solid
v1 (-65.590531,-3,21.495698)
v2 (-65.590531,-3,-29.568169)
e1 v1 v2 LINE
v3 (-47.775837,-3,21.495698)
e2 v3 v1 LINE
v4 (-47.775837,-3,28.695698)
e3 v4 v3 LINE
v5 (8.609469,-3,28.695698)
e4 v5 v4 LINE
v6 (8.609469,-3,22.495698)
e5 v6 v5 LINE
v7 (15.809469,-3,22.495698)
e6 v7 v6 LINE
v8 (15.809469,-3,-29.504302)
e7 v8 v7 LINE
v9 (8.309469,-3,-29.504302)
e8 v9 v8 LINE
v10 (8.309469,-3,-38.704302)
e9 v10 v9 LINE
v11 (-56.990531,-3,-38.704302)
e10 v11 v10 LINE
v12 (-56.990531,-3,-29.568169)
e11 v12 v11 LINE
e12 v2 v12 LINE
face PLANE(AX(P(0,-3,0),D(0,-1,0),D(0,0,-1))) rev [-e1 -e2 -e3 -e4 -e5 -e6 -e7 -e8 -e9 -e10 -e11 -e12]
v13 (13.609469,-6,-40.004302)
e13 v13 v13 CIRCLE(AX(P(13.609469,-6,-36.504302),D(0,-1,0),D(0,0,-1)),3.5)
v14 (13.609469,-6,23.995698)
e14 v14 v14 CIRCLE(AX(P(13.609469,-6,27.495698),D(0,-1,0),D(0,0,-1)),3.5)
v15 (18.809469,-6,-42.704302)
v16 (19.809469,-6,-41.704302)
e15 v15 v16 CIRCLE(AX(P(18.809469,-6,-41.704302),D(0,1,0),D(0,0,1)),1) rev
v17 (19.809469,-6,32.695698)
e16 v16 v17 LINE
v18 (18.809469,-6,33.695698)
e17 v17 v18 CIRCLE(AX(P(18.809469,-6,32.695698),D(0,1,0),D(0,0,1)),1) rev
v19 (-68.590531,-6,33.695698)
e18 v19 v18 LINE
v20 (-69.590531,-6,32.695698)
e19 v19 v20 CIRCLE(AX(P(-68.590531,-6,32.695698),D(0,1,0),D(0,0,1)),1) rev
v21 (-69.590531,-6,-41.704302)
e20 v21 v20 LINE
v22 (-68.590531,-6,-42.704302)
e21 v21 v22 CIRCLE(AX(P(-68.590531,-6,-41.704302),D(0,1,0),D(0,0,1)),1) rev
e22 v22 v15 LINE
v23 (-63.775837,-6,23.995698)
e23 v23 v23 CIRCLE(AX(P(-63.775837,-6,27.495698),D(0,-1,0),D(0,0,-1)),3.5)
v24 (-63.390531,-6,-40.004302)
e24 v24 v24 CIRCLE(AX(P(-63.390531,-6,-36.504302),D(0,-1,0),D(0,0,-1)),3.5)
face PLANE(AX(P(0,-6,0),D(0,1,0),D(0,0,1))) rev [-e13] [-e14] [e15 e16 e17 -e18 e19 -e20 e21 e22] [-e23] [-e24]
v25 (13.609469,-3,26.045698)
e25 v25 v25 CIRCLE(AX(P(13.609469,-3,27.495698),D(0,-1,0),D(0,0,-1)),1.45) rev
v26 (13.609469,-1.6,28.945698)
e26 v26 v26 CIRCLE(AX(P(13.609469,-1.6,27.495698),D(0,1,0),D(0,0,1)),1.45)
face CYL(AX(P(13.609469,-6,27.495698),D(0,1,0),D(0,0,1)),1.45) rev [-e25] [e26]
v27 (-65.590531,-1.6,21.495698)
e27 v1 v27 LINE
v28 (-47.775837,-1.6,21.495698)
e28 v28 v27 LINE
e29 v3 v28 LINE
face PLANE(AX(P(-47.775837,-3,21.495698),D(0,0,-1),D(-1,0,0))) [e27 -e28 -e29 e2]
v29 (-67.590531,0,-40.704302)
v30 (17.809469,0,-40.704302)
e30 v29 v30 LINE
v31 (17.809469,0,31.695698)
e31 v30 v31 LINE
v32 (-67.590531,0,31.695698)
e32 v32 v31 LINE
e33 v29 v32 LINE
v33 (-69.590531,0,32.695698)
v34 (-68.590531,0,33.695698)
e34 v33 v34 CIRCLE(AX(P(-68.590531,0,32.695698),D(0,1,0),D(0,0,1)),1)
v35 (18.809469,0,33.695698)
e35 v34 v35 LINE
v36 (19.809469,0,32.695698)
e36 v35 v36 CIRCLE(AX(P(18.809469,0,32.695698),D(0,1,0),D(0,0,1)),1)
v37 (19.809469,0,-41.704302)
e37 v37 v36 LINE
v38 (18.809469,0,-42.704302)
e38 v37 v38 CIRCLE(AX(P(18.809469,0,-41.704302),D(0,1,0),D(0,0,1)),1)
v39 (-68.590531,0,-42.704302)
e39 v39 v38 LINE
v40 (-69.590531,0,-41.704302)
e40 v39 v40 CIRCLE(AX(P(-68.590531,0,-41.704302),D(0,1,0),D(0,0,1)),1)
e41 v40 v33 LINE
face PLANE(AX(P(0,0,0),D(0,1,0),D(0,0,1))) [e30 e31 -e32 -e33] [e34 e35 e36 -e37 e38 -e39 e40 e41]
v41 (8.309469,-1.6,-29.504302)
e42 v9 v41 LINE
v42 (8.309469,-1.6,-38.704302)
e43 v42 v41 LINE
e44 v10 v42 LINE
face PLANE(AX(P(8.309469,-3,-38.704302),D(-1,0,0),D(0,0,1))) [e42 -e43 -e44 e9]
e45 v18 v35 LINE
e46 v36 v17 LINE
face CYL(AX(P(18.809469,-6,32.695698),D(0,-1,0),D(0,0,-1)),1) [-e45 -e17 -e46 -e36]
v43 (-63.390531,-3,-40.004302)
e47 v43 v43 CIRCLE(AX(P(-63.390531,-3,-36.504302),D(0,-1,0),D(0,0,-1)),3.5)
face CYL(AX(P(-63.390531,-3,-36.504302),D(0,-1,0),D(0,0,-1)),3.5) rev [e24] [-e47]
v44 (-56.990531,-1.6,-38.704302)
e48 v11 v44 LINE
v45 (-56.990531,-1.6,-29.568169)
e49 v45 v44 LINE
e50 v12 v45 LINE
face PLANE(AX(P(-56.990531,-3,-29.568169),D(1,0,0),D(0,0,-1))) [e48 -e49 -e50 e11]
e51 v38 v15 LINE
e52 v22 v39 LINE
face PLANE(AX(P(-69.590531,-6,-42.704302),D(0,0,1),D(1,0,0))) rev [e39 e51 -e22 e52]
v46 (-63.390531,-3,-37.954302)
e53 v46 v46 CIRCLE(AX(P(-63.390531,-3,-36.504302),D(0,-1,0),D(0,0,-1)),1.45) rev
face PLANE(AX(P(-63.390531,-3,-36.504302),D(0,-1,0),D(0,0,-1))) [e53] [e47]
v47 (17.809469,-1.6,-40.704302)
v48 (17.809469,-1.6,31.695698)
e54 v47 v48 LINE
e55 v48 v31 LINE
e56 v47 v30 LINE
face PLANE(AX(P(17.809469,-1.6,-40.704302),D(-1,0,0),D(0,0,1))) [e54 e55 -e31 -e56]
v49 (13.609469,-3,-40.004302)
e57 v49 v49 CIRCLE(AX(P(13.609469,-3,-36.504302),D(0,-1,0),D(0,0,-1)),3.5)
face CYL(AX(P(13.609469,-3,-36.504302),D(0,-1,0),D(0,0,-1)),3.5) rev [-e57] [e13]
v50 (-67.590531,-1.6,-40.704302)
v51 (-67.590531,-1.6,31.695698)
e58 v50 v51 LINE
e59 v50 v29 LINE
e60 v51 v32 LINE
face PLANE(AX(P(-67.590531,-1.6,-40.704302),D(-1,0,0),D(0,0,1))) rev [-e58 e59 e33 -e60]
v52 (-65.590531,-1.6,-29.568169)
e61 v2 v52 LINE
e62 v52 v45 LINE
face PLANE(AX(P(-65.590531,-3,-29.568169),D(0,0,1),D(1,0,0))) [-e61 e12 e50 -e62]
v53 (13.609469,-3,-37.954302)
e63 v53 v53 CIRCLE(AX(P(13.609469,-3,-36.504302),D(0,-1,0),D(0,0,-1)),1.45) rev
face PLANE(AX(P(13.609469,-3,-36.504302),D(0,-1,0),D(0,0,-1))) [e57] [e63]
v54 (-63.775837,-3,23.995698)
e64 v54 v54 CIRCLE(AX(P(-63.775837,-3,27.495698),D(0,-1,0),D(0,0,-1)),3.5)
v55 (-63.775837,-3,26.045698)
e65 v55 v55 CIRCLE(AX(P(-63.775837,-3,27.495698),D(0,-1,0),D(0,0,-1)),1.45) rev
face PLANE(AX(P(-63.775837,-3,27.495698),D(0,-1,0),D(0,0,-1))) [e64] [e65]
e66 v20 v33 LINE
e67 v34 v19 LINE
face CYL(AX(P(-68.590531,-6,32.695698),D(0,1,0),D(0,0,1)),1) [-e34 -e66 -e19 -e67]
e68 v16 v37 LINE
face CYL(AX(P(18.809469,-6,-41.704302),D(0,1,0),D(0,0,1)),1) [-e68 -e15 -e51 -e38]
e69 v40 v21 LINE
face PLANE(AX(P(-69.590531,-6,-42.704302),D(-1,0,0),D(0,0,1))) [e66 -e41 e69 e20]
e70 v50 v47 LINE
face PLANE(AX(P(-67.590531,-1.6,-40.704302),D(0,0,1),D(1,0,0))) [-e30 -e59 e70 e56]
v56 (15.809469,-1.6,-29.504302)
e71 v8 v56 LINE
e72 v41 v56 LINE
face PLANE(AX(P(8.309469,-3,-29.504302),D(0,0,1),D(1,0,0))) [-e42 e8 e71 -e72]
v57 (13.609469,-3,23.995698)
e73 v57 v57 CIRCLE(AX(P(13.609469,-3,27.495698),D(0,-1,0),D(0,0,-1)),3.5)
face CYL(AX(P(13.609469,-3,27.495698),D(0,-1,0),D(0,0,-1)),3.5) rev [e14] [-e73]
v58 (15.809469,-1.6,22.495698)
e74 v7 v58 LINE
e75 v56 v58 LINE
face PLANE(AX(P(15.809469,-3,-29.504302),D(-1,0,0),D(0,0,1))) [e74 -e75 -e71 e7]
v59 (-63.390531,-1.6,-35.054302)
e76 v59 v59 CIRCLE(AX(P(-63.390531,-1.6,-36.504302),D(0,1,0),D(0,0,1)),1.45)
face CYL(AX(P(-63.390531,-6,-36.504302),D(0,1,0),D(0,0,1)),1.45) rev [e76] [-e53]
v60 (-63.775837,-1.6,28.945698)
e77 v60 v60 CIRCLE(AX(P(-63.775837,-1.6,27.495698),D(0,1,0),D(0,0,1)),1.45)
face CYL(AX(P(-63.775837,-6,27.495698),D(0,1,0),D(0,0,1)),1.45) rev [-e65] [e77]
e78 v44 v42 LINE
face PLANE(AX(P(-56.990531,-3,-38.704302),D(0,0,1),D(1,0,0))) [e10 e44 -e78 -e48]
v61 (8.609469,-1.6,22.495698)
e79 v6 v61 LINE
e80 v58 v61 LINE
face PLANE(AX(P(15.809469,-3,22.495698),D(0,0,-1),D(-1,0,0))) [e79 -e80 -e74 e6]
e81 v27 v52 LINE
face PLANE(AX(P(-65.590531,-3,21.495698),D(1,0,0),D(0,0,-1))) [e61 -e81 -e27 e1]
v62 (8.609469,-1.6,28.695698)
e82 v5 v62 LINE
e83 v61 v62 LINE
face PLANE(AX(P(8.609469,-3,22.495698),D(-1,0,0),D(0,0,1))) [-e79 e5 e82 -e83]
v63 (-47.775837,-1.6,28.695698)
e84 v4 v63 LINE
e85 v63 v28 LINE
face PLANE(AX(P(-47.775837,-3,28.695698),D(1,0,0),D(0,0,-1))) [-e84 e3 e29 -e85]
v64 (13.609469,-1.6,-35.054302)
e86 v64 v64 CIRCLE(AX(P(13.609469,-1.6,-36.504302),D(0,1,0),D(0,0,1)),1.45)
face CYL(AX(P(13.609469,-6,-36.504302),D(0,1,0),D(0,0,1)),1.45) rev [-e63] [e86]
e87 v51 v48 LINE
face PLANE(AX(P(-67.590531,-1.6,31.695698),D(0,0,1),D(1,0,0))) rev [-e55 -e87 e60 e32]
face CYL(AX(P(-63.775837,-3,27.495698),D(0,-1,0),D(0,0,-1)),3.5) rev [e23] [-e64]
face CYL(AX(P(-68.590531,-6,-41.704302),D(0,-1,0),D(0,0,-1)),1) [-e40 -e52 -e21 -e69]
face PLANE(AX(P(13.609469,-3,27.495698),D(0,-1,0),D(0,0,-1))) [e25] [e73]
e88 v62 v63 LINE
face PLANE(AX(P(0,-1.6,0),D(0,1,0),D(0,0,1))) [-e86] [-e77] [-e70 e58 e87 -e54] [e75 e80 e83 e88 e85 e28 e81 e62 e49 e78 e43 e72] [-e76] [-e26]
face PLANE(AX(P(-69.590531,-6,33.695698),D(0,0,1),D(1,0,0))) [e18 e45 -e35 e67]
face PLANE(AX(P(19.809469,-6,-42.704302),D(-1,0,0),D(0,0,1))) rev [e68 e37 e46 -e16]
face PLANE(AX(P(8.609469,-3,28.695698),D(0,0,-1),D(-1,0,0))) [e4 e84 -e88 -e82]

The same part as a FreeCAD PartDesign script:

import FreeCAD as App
import Part
import Sketcher


def edges_at(feature, points):
    """Names of the edges that pass closest to the given points."""
    edges = feature.Shape.Edges
    near = lambda p: min(range(len(edges)), key=lambda i: edges[i].distToShape(Part.Vertex(*p))[0])
    return sorted({f"Edge{near(p) + 1}" for p in points})

doc = App.newDocument("Part")
body = doc.addObject("PartDesign::Body", "Body")

# Sketch on XZ plane
sketch1 = body.newObject("Sketcher::SketchObject", "Sketch")
sketch1.AttachmentSupport = (doc.getObject("XZ_Plane"), [""])
sketch1.MapMode = "FlatFace"
sketch1.addGeometry([
    Part.LineSegment(App.Vector(-70, -43, 0), App.Vector(-70, 34, 0)),
    Part.LineSegment(App.Vector(-70, 34, 0), App.Vector(20, 34, 0)),
    Part.LineSegment(App.Vector(20, 34, 0), App.Vector(20, -43, 0)),
    Part.LineSegment(App.Vector(20, -43, 0), App.Vector(-70, -43, 0)),
], False)
sketch1.addConstraint([
    Sketcher.Constraint("Coincident", 0, 2, 1, 1),
    Sketcher.Constraint("Coincident", 1, 2, 2, 1),
    Sketcher.Constraint("Coincident", 2, 2, 3, 1),
    Sketcher.Constraint("Coincident", 3, 2, 0, 1),
    Sketcher.Constraint("Vertical", 0),
    Sketcher.Constraint("Horizontal", 1),
    Sketcher.Constraint("Vertical", 2),
    Sketcher.Constraint("Horizontal", 3),
    Sketcher.Constraint("DistanceX", 1, 1, 1, 2, 89.4),
    Sketcher.Constraint("DistanceY", 0, 1, 0, 2, 76.4),
    Sketcher.Constraint("DistanceX", 0, 2, -1, 1, 69.590531),
    Sketcher.Constraint("DistanceY", -1, 1, 0, 2, 33.695698),
])
pad1 = body.newObject("PartDesign::Pad", "Pad")
pad1.Profile = sketch1
pad1.Length = 6

# Sketch on XZ plane
sketch2 = body.newObject("Sketcher::SketchObject", "Sketch001")
sketch2.AttachmentSupport = (doc.getObject("XZ_Plane"), [""])
sketch2.MapMode = "FlatFace"
sketch2.addGeometry([
    Part.LineSegment(App.Vector(-68, -41, 0), App.Vector(-68, 32, 0)),
    Part.LineSegment(App.Vector(-68, 32, 0), App.Vector(18, 32, 0)),
    Part.LineSegment(App.Vector(18, 32, 0), App.Vector(18, -41, 0)),
    Part.LineSegment(App.Vector(18, -41, 0), App.Vector(-68, -41, 0)),
], False)
sketch2.addConstraint([
    Sketcher.Constraint("Coincident", 0, 2, 1, 1),
    Sketcher.Constraint("Coincident", 1, 2, 2, 1),
    Sketcher.Constraint("Coincident", 2, 2, 3, 1),
    Sketcher.Constraint("Coincident", 3, 2, 0, 1),
    Sketcher.Constraint("Vertical", 0),
    Sketcher.Constraint("Horizontal", 1),
    Sketcher.Constraint("Vertical", 2),
    Sketcher.Constraint("Horizontal", 3),
    Sketcher.Constraint("DistanceX", 1, 1, 1, 2, 85.4),
    Sketcher.Constraint("DistanceY", 0, 1, 0, 2, 72.4),
    Sketcher.Constraint("DistanceX", 0, 2, -1, 1, 67.590531),
    Sketcher.Constraint("DistanceY", -1, 1, 0, 2, 31.695698),
])
pocket1 = body.newObject("PartDesign::Pocket", "Pocket")
pocket1.Profile = sketch2
pocket1.Length = 1.6
pocket1.Reversed = True

# Sketch on XZ plane
sketch3 = body.newObject("Sketcher::SketchObject", "Sketch002")
sketch3.AttachmentSupport = (doc.getObject("XZ_Plane"), [""])
sketch3.MapMode = "FlatFace"
sketch3.addGeometry([
    Part.LineSegment(App.Vector(-66, 21, 0), App.Vector(-48, 21, 0)),  # 0
    Part.LineSegment(App.Vector(-48, 21, 0), App.Vector(-48, 29, 0)),  # 1
    Part.LineSegment(App.Vector(-48, 29, 0), App.Vector(9, 29, 0)),  # 2
    Part.LineSegment(App.Vector(9, 29, 0), App.Vector(9, 22, 0)),  # 3
    Part.LineSegment(App.Vector(9, 22, 0), App.Vector(16, 22, 0)),  # 4
    Part.LineSegment(App.Vector(16, 22, 0), App.Vector(16, -30, 0)),  # 5
    Part.LineSegment(App.Vector(16, -30, 0), App.Vector(8, -30, 0)),  # 6
    Part.LineSegment(App.Vector(8, -30, 0), App.Vector(8, -39, 0)),  # 7
    Part.LineSegment(App.Vector(8, -39, 0), App.Vector(-57, -39, 0)),  # 8
    Part.LineSegment(App.Vector(-57, -39, 0), App.Vector(-57, -30, 0)),  # 9
    Part.LineSegment(App.Vector(-57, -30, 0), App.Vector(-66, -30, 0)),  # 10
    Part.LineSegment(App.Vector(-66, -30, 0), App.Vector(-66, 21, 0)),  # 11
], False)
sketch3.addConstraint([
    Sketcher.Constraint("Coincident", 0, 2, 1, 1),
    Sketcher.Constraint("Coincident", 1, 2, 2, 1),
    Sketcher.Constraint("Coincident", 2, 2, 3, 1),
    Sketcher.Constraint("Coincident", 3, 2, 4, 1),
    Sketcher.Constraint("Coincident", 4, 2, 5, 1),
    Sketcher.Constraint("Coincident", 5, 2, 6, 1),
    Sketcher.Constraint("Coincident", 6, 2, 7, 1),
    Sketcher.Constraint("Coincident", 7, 2, 8, 1),
    Sketcher.Constraint("Coincident", 8, 2, 9, 1),
    Sketcher.Constraint("Coincident", 9, 2, 10, 1),
    Sketcher.Constraint("Coincident", 10, 2, 11, 1),
    Sketcher.Constraint("Coincident", 11, 2, 0, 1),
    Sketcher.Constraint("Horizontal", 0),
    Sketcher.Constraint("Vertical", 1),
    Sketcher.Constraint("Horizontal", 2),
    Sketcher.Constraint("Vertical", 3),
    Sketcher.Constraint("Horizontal", 4),
    Sketcher.Constraint("Vertical", 5),
    Sketcher.Constraint("Horizontal", 6),
    Sketcher.Constraint("Vertical", 7),
    Sketcher.Constraint("Horizontal", 8),
    Sketcher.Constraint("Vertical", 9),
    Sketcher.Constraint("Horizontal", 10),
    Sketcher.Constraint("Vertical", 11),
    Sketcher.Constraint("Equal", 4, 1),
    Sketcher.Constraint("DistanceY", 5, 2, 5, 1, 52.0),
    Sketcher.Constraint("DistanceX", 4, 1, 4, 2, 7.2),
    Sketcher.Constraint("DistanceX", 6, 2, 6, 1, 7.5),
    Sketcher.Constraint("DistanceX", 8, 2, 8, 1, 65.3),
    Sketcher.Constraint("DistanceX", 10, 2, 10, 1, 8.6),
    Sketcher.Constraint("DistanceY", 3, 2, 3, 1, 6.2),
    Sketcher.Constraint("DistanceY", 7, 2, 7, 1, 9.2),
    Sketcher.Constraint("DistanceX", 0, 1, 0, 2, 17.814695),
    Sketcher.Constraint("DistanceY", 9, 1, 9, 2, 9.136133),
    Sketcher.Constraint("DistanceX", -1, 1, 2, 2, 8.609469),
    Sketcher.Constraint("DistanceY", 9, 2, -1, 1, 29.568169),
])
pocket2 = body.newObject("PartDesign::Pocket", "Pocket001")
pocket2.Profile = sketch3
pocket2.Length = 3
pocket2.Reversed = True

# Sketch on XZ plane
sketch4 = body.newObject("Sketcher::SketchObject", "Sketch003")
sketch4.AttachmentSupport = (doc.getObject("XZ_Plane"), [""])
sketch4.MapMode = "FlatFace"
sketch4.addGeometry([
    Part.Circle(App.Vector(13.6, -36.5, 0), App.Vector(0, 0, 1), 1.4),
    Part.Circle(App.Vector(-63.8, 27.5, 0), App.Vector(0, 0, 1), 1.4),
    Part.Circle(App.Vector(-63.4, -36.5, 0), App.Vector(0, 0, 1), 1.4),
    Part.Circle(App.Vector(13.6, 27.5, 0), App.Vector(0, 0, 1), 1.4),
], False)
sketch4.addConstraint([
    Sketcher.Constraint("Equal", 0, 1),
    Sketcher.Constraint("Equal", 1, 2),
    Sketcher.Constraint("Equal", 2, 3),
    Sketcher.Constraint("Horizontal", 0, 3, 2, 3),
    Sketcher.Constraint("Horizontal", 1, 3, 3, 3),
    Sketcher.Constraint("Vertical", 0, 3, 3, 3),
    Sketcher.Constraint("Diameter", 0, 2.9),
    Sketcher.Constraint("DistanceY", 0, 3, 1, 3, 64.0),
    Sketcher.Constraint("DistanceX", 2, 3, 0, 3, 77.0),
    Sketcher.Constraint("DistanceX", -1, 1, 0, 3, 13.609469),
    Sketcher.Constraint("DistanceY", 0, 3, -1, 1, 36.504302),
    Sketcher.Constraint("DistanceX", 1, 3, -1, 1, 63.775837),
])
pocket3 = body.newObject("PartDesign::Pocket", "Pocket002")
pocket3.Profile = sketch4
pocket3.Type = "ThroughAll"
pocket3.Reversed = True
doc.recompute()

fillet = body.newObject("PartDesign::Fillet", "Fillet")
fillet.Base = (pocket3, edges_at(pocket3, [
    (-69.591, -3, -42.704),
    (19.809, -3, -42.704),
    (19.809, -3, 33.696),
    (-69.591, -3, 33.696),
]))
fillet.Radius = 1

# Sketch on XZ plane
sketch5 = body.newObject("Sketcher::SketchObject", "Sketch004")
sketch5.AttachmentSupport = (doc.getObject("XZ_Plane"), [""])
sketch5.MapMode = "FlatFace"
sketch5.AttachmentOffset = App.Placement(App.Vector(0, 0, 6), App.Rotation())
sketch5.addGeometry([
    Part.Circle(App.Vector(-63.8, 27.5, 0), App.Vector(0, 0, 1), 3.5),
    Part.Circle(App.Vector(13.6, 27.5, 0), App.Vector(0, 0, 1), 3.5),
    Part.Circle(App.Vector(13.6, -36.5, 0), App.Vector(0, 0, 1), 3.5),
    Part.Circle(App.Vector(-63.4, -36.5, 0), App.Vector(0, 0, 1), 3.5),
], False)
sketch5.addConstraint([
    Sketcher.Constraint("Equal", 0, 1),
    Sketcher.Constraint("Equal", 1, 2),
    Sketcher.Constraint("Equal", 2, 3),
    Sketcher.Constraint("Horizontal", 0, 3, 1, 3),
    Sketcher.Constraint("Horizontal", 2, 3, 3, 3),
    Sketcher.Constraint("Vertical", 1, 3, 2, 3),
    Sketcher.Constraint("Diameter", 0, 7.0),
    Sketcher.Constraint("DistanceY", 2, 3, 1, 3, 64.0),
    Sketcher.Constraint("DistanceX", 3, 3, 2, 3, 77.0),
    Sketcher.Constraint("DistanceX", -1, 1, 1, 3, 13.609469),
    Sketcher.Constraint("DistanceX", 0, 3, -1, 1, 63.775837),
    Sketcher.Constraint("DistanceY", -1, 1, 0, 3, 27.495698),
])
pocket4 = body.newObject("PartDesign::Pocket", "Pocket003")
pocket4.Profile = sketch5
pocket4.Length = 3

doc.recompute()
